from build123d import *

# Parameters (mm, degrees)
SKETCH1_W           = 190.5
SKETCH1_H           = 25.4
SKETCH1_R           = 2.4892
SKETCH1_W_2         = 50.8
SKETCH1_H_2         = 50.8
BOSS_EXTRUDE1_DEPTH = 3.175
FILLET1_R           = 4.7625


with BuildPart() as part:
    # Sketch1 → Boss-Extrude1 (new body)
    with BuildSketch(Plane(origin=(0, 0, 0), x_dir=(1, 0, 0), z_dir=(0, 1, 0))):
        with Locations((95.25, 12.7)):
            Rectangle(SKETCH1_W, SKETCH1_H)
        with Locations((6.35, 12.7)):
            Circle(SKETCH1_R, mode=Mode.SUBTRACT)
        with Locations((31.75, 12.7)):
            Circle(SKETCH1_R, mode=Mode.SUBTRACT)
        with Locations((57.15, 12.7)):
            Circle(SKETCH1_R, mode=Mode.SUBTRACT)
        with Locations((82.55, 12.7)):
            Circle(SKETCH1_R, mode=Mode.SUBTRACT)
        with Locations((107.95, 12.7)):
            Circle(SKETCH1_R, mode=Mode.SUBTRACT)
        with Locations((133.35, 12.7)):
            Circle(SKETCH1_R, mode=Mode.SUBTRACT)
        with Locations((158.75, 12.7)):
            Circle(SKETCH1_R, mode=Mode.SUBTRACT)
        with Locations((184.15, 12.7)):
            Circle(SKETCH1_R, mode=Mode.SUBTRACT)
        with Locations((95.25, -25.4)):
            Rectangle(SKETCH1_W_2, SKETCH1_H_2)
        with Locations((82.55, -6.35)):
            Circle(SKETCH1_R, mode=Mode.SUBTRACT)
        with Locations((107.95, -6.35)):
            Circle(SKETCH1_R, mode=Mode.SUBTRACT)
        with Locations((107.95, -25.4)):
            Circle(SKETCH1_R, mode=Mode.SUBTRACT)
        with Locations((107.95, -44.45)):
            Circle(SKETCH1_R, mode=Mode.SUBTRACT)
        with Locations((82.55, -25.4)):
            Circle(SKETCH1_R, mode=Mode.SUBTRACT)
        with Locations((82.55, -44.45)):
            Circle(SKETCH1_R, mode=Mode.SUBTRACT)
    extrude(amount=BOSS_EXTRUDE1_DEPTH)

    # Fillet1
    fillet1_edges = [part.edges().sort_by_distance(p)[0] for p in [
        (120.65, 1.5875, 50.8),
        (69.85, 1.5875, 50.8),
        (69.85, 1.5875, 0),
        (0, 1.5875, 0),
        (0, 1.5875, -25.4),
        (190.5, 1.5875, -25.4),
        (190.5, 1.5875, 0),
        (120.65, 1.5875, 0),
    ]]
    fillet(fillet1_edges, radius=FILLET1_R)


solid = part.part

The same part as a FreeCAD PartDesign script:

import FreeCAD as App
import Part
import Sketcher
from FreeCAD import Vector
Q = App.Units.Quantity


def edges_at(feature, points):
    """Names of the edges that pass closest to the given points."""
    edges = feature.Shape.Edges
    near = lambda p: min(range(len(edges)), key=lambda i: edges[i].distToShape(Part.Vertex(*p))[0])
    return sorted({f"Edge{near(p) + 1}" for p in points})


def add_polygon(sketch, points):
    """Adds a closed chain of lines whose ends are joined by coincident constraints."""
    first, n = sketch.GeometryCount, len(points)
    for a, b in zip(points, points[1:] + points[:1]):
        sketch.addGeometry(Part.LineSegment(App.Vector(*a, 0), App.Vector(*b, 0)), False)
    for i in range(n):
        sketch.addConstraint(Sketcher.Constraint("Coincident", first + i, 2, first + (i + 1) % n, 1))

doc = App.newDocument("Part")
body = doc.addObject("PartDesign::Body", "Body")

# Sketch on XZ plane
sketch1 = body.newObject("Sketcher::SketchObject", "Sketch")
sketch1.AttachmentSupport = (doc.getObject("XZ_Plane"), [""])
sketch1.MapMode = "FlatFace"
add_polygon(sketch1, [(0, -25.4), (0, 0), (69.8, 0), (69.8, 50.8), (120.7, 50.8), (120.7, 0), (190.5, 0), (190.5, -25.4)])  # lines 0-7
sketch1.addGeometry(Part.Circle(Vector(82.5, 44.5, 0), Vector(0, 0, 1), 2.5), False)  # 8
sketch1.addGeometry(Part.Circle(Vector(82.5, 25.4, 0), Vector(0, 0, 1), 2.5), False)  # 9
sketch1.addGeometry(Part.Circle(Vector(108, 44.5, 0), Vector(0, 0, 1), 2.5), False)  # 10
sketch1.addGeometry(Part.Circle(Vector(108, 25.4, 0), Vector(0, 0, 1), 2.5), False)  # 11
sketch1.addGeometry(Part.Circle(Vector(82.5, 6.3, 0), Vector(0, 0, 1), 2.5), False)  # 12
sketch1.addGeometry(Part.Circle(Vector(6.3, -12.7, 0), Vector(0, 0, 1), 2.5), False)  # 13
sketch1.addGeometry(Part.Circle(Vector(31.8, -12.7, 0), Vector(0, 0, 1), 2.5), False)  # 14
sketch1.addGeometry(Part.Circle(Vector(57.1, -12.7, 0), Vector(0, 0, 1), 2.5), False)  # 15
sketch1.addGeometry(Part.Circle(Vector(82.5, -12.7, 0), Vector(0, 0, 1), 2.5), False)  # 16
sketch1.addGeometry(Part.Circle(Vector(108, 6.3, 0), Vector(0, 0, 1), 2.5), False)  # 17
sketch1.addGeometry(Part.Circle(Vector(108, -12.7, 0), Vector(0, 0, 1), 2.5), False)  # 18
sketch1.addGeometry(Part.Circle(Vector(133.3, -12.7, 0), Vector(0, 0, 1), 2.5), False)  # 19
sketch1.addGeometry(Part.Circle(Vector(158.8, -12.7, 0), Vector(0, 0, 1), 2.5), False)  # 20
sketch1.addGeometry(Part.Circle(Vector(184.2, -12.7, 0), Vector(0, 0, 1), 2.5), False)  # 21
sketch1.addConstraint(Sketcher.Constraint("Vertical", 0))
sketch1.addConstraint(Sketcher.Constraint("Horizontal", 1))
sketch1.addConstraint(Sketcher.Constraint("Vertical", 2))
sketch1.addConstraint(Sketcher.Constraint("Horizontal", 3))
sketch1.addConstraint(Sketcher.Constraint("Vertical", 4))
sketch1.addConstraint(Sketcher.Constraint("Horizontal", 5))
sketch1.addConstraint(Sketcher.Constraint("Vertical", 6))
sketch1.addConstraint(Sketcher.Constraint("Horizontal", 7))
sketch1.addConstraint(Sketcher.Constraint("Coincident", 0, 2, -1, 1))
sketch1.addConstraint(Sketcher.Constraint("Equal", 8, 9))
sketch1.addConstraint(Sketcher.Constraint("Equal", 9, 10))
sketch1.addConstraint(Sketcher.Constraint("Equal", 10, 11))
sketch1.addConstraint(Sketcher.Constraint("Equal", 11, 12))
sketch1.addConstraint(Sketcher.Constraint("Equal", 12, 13))
sketch1.addConstraint(Sketcher.Constraint("Equal", 13, 14))
sketch1.addConstraint(Sketcher.Constraint("Equal", 14, 15))
sketch1.addConstraint(Sketcher.Constraint("Equal", 15, 16))
sketch1.addConstraint(Sketcher.Constraint("Equal", 16, 17))
sketch1.addConstraint(Sketcher.Constraint("Equal", 17, 18))
sketch1.addConstraint(Sketcher.Constraint("Equal", 18, 19))
sketch1.addConstraint(Sketcher.Constraint("Equal", 19, 20))
sketch1.addConstraint(Sketcher.Constraint("Equal", 20, 21))
sketch1.addConstraint(Sketcher.Constraint("PointOnObject", 4, 2, -1))
sketch1.addConstraint(Sketcher.Constraint("Horizontal", 8, 3, 10, 3))
sketch1.addConstraint(Sketcher.Constraint("Horizontal", 9, 3, 11, 3))
sketch1.addConstraint(Sketcher.Constraint("Horizontal", 13, 3, 14, 3))
sketch1.addConstraint(Sketcher.Constraint("Horizontal", 14, 3, 15, 3))
sketch1.addConstraint(Sketcher.Constraint("Horizontal", 15, 3, 16, 3))
sketch1.addConstraint(Sketcher.Constraint("Horizontal", 12, 3, 17, 3))
sketch1.addConstraint(Sketcher.Constraint("Horizontal", 16, 3, 18, 3))
sketch1.addConstraint(Sketcher.Constraint("Horizontal", 18, 3, 19, 3))
sketch1.addConstraint(Sketcher.Constraint("Horizontal", 19, 3, 20, 3))
sketch1.addConstraint(Sketcher.Constraint("Horizontal", 20, 3, 21, 3))
sketch1.addConstraint(Sketcher.Constraint("Vertical", 8, 3, 9, 3))
sketch1.addConstraint(Sketcher.Constraint("Vertical", 10, 3, 11, 3))
sketch1.addConstraint(Sketcher.Constraint("Vertical", 9, 3, 12, 3))
sketch1.addConstraint(Sketcher.Constraint("Vertical", 12, 3, 16, 3))
sketch1.addConstraint(Sketcher.Constraint("Vertical", 11, 3, 17, 3))
sketch1.addConstraint(Sketcher.Constraint("Vertical", 17, 3, 18, 3))
sketch1.addConstraint(Sketcher.Constraint("Equal", 1, 5))
sketch1.addConstraint(Sketcher.Constraint("Equal", 3, 2))
sketch1.addConstraint(Sketcher.Constraint("DistanceX", 3, 1, 3, 2, Q("2 in")))
sketch1.addConstraint(Sketcher.Constraint("DistanceY", 0, 1, 0, 2, Q("1 in")))
sketch1.addConstraint(Sketcher.Constraint("Diameter", 8, Q("0.196 in")))
sketch1.addConstraint(Sketcher.Constraint("DistanceX", 7, 2, 7, 1, Q("7.5 in")))
sketch1.addConstraint(Sketcher.Constraint("DistanceY", -1, 1, 9, 3, Q("1 in")))
sketch1.addConstraint(Sketcher.Constraint("DistanceX", 8, 3, 10, 3, Q("1 in")))
sketch1.addConstraint(Sketcher.Constraint("DistanceX", 13, 3, 12, 3, Q("3 in")))
sketch1.addConstraint(Sketcher.Constraint("DistanceX", 13, 3, 14, 3, Q("1 in")))
sketch1.addConstraint(Sketcher.Constraint("DistanceX", 14, 3, 15, 3, Q("1 in")))
sketch1.addConstraint(Sketcher.Constraint("DistanceX", 18, 3, 19, 3, Q("1 in")))
sketch1.addConstraint(Sketcher.Constraint("DistanceX", 19, 3, 20, 3, Q("1 in")))
sketch1.addConstraint(Sketcher.Constraint("DistanceX", 20, 3, 21, 3, Q("1 in")))
sketch1.addConstraint(Sketcher.Constraint("DistanceY", 13, 3, -1, 1, Q("0.5 in")))
sketch1.addConstraint(Sketcher.Constraint("DistanceY", 12, 3, 8, 3, Q("1.5 in")))
sketch1.addConstraint(Sketcher.Constraint("DistanceX", 1, 2, 12, 3, Q("0.5 in")))
sketch1.addConstraint(Sketcher.Constraint("DistanceY", -1, 1, 8, 3, Q("1.75 in")))
pad1 = body.newObject("PartDesign::Pad", "Pad")
pad1.Profile = sketch1
pad1.Length = Q("0.125 in")
pad1.Reversed = True
doc.recompute()

fillet = body.newObject("PartDesign::Fillet", "Fillet")
fillet.Base = (pad1, edges_at(pad1, [
    (120.65, 1.587, 50.8),
    (69.85, 1.587, 50.8),
    (69.85, 1.587, 0),
    (0, 1.587, 0),
    (0, 1.587, -25.4),
    (190.5, 1.587, -25.4),
    (190.5, 1.587, 0),
    (120.65, 1.587, 0),
]))
fillet.Radius = Q("0.1875 in")

doc.recompute()
